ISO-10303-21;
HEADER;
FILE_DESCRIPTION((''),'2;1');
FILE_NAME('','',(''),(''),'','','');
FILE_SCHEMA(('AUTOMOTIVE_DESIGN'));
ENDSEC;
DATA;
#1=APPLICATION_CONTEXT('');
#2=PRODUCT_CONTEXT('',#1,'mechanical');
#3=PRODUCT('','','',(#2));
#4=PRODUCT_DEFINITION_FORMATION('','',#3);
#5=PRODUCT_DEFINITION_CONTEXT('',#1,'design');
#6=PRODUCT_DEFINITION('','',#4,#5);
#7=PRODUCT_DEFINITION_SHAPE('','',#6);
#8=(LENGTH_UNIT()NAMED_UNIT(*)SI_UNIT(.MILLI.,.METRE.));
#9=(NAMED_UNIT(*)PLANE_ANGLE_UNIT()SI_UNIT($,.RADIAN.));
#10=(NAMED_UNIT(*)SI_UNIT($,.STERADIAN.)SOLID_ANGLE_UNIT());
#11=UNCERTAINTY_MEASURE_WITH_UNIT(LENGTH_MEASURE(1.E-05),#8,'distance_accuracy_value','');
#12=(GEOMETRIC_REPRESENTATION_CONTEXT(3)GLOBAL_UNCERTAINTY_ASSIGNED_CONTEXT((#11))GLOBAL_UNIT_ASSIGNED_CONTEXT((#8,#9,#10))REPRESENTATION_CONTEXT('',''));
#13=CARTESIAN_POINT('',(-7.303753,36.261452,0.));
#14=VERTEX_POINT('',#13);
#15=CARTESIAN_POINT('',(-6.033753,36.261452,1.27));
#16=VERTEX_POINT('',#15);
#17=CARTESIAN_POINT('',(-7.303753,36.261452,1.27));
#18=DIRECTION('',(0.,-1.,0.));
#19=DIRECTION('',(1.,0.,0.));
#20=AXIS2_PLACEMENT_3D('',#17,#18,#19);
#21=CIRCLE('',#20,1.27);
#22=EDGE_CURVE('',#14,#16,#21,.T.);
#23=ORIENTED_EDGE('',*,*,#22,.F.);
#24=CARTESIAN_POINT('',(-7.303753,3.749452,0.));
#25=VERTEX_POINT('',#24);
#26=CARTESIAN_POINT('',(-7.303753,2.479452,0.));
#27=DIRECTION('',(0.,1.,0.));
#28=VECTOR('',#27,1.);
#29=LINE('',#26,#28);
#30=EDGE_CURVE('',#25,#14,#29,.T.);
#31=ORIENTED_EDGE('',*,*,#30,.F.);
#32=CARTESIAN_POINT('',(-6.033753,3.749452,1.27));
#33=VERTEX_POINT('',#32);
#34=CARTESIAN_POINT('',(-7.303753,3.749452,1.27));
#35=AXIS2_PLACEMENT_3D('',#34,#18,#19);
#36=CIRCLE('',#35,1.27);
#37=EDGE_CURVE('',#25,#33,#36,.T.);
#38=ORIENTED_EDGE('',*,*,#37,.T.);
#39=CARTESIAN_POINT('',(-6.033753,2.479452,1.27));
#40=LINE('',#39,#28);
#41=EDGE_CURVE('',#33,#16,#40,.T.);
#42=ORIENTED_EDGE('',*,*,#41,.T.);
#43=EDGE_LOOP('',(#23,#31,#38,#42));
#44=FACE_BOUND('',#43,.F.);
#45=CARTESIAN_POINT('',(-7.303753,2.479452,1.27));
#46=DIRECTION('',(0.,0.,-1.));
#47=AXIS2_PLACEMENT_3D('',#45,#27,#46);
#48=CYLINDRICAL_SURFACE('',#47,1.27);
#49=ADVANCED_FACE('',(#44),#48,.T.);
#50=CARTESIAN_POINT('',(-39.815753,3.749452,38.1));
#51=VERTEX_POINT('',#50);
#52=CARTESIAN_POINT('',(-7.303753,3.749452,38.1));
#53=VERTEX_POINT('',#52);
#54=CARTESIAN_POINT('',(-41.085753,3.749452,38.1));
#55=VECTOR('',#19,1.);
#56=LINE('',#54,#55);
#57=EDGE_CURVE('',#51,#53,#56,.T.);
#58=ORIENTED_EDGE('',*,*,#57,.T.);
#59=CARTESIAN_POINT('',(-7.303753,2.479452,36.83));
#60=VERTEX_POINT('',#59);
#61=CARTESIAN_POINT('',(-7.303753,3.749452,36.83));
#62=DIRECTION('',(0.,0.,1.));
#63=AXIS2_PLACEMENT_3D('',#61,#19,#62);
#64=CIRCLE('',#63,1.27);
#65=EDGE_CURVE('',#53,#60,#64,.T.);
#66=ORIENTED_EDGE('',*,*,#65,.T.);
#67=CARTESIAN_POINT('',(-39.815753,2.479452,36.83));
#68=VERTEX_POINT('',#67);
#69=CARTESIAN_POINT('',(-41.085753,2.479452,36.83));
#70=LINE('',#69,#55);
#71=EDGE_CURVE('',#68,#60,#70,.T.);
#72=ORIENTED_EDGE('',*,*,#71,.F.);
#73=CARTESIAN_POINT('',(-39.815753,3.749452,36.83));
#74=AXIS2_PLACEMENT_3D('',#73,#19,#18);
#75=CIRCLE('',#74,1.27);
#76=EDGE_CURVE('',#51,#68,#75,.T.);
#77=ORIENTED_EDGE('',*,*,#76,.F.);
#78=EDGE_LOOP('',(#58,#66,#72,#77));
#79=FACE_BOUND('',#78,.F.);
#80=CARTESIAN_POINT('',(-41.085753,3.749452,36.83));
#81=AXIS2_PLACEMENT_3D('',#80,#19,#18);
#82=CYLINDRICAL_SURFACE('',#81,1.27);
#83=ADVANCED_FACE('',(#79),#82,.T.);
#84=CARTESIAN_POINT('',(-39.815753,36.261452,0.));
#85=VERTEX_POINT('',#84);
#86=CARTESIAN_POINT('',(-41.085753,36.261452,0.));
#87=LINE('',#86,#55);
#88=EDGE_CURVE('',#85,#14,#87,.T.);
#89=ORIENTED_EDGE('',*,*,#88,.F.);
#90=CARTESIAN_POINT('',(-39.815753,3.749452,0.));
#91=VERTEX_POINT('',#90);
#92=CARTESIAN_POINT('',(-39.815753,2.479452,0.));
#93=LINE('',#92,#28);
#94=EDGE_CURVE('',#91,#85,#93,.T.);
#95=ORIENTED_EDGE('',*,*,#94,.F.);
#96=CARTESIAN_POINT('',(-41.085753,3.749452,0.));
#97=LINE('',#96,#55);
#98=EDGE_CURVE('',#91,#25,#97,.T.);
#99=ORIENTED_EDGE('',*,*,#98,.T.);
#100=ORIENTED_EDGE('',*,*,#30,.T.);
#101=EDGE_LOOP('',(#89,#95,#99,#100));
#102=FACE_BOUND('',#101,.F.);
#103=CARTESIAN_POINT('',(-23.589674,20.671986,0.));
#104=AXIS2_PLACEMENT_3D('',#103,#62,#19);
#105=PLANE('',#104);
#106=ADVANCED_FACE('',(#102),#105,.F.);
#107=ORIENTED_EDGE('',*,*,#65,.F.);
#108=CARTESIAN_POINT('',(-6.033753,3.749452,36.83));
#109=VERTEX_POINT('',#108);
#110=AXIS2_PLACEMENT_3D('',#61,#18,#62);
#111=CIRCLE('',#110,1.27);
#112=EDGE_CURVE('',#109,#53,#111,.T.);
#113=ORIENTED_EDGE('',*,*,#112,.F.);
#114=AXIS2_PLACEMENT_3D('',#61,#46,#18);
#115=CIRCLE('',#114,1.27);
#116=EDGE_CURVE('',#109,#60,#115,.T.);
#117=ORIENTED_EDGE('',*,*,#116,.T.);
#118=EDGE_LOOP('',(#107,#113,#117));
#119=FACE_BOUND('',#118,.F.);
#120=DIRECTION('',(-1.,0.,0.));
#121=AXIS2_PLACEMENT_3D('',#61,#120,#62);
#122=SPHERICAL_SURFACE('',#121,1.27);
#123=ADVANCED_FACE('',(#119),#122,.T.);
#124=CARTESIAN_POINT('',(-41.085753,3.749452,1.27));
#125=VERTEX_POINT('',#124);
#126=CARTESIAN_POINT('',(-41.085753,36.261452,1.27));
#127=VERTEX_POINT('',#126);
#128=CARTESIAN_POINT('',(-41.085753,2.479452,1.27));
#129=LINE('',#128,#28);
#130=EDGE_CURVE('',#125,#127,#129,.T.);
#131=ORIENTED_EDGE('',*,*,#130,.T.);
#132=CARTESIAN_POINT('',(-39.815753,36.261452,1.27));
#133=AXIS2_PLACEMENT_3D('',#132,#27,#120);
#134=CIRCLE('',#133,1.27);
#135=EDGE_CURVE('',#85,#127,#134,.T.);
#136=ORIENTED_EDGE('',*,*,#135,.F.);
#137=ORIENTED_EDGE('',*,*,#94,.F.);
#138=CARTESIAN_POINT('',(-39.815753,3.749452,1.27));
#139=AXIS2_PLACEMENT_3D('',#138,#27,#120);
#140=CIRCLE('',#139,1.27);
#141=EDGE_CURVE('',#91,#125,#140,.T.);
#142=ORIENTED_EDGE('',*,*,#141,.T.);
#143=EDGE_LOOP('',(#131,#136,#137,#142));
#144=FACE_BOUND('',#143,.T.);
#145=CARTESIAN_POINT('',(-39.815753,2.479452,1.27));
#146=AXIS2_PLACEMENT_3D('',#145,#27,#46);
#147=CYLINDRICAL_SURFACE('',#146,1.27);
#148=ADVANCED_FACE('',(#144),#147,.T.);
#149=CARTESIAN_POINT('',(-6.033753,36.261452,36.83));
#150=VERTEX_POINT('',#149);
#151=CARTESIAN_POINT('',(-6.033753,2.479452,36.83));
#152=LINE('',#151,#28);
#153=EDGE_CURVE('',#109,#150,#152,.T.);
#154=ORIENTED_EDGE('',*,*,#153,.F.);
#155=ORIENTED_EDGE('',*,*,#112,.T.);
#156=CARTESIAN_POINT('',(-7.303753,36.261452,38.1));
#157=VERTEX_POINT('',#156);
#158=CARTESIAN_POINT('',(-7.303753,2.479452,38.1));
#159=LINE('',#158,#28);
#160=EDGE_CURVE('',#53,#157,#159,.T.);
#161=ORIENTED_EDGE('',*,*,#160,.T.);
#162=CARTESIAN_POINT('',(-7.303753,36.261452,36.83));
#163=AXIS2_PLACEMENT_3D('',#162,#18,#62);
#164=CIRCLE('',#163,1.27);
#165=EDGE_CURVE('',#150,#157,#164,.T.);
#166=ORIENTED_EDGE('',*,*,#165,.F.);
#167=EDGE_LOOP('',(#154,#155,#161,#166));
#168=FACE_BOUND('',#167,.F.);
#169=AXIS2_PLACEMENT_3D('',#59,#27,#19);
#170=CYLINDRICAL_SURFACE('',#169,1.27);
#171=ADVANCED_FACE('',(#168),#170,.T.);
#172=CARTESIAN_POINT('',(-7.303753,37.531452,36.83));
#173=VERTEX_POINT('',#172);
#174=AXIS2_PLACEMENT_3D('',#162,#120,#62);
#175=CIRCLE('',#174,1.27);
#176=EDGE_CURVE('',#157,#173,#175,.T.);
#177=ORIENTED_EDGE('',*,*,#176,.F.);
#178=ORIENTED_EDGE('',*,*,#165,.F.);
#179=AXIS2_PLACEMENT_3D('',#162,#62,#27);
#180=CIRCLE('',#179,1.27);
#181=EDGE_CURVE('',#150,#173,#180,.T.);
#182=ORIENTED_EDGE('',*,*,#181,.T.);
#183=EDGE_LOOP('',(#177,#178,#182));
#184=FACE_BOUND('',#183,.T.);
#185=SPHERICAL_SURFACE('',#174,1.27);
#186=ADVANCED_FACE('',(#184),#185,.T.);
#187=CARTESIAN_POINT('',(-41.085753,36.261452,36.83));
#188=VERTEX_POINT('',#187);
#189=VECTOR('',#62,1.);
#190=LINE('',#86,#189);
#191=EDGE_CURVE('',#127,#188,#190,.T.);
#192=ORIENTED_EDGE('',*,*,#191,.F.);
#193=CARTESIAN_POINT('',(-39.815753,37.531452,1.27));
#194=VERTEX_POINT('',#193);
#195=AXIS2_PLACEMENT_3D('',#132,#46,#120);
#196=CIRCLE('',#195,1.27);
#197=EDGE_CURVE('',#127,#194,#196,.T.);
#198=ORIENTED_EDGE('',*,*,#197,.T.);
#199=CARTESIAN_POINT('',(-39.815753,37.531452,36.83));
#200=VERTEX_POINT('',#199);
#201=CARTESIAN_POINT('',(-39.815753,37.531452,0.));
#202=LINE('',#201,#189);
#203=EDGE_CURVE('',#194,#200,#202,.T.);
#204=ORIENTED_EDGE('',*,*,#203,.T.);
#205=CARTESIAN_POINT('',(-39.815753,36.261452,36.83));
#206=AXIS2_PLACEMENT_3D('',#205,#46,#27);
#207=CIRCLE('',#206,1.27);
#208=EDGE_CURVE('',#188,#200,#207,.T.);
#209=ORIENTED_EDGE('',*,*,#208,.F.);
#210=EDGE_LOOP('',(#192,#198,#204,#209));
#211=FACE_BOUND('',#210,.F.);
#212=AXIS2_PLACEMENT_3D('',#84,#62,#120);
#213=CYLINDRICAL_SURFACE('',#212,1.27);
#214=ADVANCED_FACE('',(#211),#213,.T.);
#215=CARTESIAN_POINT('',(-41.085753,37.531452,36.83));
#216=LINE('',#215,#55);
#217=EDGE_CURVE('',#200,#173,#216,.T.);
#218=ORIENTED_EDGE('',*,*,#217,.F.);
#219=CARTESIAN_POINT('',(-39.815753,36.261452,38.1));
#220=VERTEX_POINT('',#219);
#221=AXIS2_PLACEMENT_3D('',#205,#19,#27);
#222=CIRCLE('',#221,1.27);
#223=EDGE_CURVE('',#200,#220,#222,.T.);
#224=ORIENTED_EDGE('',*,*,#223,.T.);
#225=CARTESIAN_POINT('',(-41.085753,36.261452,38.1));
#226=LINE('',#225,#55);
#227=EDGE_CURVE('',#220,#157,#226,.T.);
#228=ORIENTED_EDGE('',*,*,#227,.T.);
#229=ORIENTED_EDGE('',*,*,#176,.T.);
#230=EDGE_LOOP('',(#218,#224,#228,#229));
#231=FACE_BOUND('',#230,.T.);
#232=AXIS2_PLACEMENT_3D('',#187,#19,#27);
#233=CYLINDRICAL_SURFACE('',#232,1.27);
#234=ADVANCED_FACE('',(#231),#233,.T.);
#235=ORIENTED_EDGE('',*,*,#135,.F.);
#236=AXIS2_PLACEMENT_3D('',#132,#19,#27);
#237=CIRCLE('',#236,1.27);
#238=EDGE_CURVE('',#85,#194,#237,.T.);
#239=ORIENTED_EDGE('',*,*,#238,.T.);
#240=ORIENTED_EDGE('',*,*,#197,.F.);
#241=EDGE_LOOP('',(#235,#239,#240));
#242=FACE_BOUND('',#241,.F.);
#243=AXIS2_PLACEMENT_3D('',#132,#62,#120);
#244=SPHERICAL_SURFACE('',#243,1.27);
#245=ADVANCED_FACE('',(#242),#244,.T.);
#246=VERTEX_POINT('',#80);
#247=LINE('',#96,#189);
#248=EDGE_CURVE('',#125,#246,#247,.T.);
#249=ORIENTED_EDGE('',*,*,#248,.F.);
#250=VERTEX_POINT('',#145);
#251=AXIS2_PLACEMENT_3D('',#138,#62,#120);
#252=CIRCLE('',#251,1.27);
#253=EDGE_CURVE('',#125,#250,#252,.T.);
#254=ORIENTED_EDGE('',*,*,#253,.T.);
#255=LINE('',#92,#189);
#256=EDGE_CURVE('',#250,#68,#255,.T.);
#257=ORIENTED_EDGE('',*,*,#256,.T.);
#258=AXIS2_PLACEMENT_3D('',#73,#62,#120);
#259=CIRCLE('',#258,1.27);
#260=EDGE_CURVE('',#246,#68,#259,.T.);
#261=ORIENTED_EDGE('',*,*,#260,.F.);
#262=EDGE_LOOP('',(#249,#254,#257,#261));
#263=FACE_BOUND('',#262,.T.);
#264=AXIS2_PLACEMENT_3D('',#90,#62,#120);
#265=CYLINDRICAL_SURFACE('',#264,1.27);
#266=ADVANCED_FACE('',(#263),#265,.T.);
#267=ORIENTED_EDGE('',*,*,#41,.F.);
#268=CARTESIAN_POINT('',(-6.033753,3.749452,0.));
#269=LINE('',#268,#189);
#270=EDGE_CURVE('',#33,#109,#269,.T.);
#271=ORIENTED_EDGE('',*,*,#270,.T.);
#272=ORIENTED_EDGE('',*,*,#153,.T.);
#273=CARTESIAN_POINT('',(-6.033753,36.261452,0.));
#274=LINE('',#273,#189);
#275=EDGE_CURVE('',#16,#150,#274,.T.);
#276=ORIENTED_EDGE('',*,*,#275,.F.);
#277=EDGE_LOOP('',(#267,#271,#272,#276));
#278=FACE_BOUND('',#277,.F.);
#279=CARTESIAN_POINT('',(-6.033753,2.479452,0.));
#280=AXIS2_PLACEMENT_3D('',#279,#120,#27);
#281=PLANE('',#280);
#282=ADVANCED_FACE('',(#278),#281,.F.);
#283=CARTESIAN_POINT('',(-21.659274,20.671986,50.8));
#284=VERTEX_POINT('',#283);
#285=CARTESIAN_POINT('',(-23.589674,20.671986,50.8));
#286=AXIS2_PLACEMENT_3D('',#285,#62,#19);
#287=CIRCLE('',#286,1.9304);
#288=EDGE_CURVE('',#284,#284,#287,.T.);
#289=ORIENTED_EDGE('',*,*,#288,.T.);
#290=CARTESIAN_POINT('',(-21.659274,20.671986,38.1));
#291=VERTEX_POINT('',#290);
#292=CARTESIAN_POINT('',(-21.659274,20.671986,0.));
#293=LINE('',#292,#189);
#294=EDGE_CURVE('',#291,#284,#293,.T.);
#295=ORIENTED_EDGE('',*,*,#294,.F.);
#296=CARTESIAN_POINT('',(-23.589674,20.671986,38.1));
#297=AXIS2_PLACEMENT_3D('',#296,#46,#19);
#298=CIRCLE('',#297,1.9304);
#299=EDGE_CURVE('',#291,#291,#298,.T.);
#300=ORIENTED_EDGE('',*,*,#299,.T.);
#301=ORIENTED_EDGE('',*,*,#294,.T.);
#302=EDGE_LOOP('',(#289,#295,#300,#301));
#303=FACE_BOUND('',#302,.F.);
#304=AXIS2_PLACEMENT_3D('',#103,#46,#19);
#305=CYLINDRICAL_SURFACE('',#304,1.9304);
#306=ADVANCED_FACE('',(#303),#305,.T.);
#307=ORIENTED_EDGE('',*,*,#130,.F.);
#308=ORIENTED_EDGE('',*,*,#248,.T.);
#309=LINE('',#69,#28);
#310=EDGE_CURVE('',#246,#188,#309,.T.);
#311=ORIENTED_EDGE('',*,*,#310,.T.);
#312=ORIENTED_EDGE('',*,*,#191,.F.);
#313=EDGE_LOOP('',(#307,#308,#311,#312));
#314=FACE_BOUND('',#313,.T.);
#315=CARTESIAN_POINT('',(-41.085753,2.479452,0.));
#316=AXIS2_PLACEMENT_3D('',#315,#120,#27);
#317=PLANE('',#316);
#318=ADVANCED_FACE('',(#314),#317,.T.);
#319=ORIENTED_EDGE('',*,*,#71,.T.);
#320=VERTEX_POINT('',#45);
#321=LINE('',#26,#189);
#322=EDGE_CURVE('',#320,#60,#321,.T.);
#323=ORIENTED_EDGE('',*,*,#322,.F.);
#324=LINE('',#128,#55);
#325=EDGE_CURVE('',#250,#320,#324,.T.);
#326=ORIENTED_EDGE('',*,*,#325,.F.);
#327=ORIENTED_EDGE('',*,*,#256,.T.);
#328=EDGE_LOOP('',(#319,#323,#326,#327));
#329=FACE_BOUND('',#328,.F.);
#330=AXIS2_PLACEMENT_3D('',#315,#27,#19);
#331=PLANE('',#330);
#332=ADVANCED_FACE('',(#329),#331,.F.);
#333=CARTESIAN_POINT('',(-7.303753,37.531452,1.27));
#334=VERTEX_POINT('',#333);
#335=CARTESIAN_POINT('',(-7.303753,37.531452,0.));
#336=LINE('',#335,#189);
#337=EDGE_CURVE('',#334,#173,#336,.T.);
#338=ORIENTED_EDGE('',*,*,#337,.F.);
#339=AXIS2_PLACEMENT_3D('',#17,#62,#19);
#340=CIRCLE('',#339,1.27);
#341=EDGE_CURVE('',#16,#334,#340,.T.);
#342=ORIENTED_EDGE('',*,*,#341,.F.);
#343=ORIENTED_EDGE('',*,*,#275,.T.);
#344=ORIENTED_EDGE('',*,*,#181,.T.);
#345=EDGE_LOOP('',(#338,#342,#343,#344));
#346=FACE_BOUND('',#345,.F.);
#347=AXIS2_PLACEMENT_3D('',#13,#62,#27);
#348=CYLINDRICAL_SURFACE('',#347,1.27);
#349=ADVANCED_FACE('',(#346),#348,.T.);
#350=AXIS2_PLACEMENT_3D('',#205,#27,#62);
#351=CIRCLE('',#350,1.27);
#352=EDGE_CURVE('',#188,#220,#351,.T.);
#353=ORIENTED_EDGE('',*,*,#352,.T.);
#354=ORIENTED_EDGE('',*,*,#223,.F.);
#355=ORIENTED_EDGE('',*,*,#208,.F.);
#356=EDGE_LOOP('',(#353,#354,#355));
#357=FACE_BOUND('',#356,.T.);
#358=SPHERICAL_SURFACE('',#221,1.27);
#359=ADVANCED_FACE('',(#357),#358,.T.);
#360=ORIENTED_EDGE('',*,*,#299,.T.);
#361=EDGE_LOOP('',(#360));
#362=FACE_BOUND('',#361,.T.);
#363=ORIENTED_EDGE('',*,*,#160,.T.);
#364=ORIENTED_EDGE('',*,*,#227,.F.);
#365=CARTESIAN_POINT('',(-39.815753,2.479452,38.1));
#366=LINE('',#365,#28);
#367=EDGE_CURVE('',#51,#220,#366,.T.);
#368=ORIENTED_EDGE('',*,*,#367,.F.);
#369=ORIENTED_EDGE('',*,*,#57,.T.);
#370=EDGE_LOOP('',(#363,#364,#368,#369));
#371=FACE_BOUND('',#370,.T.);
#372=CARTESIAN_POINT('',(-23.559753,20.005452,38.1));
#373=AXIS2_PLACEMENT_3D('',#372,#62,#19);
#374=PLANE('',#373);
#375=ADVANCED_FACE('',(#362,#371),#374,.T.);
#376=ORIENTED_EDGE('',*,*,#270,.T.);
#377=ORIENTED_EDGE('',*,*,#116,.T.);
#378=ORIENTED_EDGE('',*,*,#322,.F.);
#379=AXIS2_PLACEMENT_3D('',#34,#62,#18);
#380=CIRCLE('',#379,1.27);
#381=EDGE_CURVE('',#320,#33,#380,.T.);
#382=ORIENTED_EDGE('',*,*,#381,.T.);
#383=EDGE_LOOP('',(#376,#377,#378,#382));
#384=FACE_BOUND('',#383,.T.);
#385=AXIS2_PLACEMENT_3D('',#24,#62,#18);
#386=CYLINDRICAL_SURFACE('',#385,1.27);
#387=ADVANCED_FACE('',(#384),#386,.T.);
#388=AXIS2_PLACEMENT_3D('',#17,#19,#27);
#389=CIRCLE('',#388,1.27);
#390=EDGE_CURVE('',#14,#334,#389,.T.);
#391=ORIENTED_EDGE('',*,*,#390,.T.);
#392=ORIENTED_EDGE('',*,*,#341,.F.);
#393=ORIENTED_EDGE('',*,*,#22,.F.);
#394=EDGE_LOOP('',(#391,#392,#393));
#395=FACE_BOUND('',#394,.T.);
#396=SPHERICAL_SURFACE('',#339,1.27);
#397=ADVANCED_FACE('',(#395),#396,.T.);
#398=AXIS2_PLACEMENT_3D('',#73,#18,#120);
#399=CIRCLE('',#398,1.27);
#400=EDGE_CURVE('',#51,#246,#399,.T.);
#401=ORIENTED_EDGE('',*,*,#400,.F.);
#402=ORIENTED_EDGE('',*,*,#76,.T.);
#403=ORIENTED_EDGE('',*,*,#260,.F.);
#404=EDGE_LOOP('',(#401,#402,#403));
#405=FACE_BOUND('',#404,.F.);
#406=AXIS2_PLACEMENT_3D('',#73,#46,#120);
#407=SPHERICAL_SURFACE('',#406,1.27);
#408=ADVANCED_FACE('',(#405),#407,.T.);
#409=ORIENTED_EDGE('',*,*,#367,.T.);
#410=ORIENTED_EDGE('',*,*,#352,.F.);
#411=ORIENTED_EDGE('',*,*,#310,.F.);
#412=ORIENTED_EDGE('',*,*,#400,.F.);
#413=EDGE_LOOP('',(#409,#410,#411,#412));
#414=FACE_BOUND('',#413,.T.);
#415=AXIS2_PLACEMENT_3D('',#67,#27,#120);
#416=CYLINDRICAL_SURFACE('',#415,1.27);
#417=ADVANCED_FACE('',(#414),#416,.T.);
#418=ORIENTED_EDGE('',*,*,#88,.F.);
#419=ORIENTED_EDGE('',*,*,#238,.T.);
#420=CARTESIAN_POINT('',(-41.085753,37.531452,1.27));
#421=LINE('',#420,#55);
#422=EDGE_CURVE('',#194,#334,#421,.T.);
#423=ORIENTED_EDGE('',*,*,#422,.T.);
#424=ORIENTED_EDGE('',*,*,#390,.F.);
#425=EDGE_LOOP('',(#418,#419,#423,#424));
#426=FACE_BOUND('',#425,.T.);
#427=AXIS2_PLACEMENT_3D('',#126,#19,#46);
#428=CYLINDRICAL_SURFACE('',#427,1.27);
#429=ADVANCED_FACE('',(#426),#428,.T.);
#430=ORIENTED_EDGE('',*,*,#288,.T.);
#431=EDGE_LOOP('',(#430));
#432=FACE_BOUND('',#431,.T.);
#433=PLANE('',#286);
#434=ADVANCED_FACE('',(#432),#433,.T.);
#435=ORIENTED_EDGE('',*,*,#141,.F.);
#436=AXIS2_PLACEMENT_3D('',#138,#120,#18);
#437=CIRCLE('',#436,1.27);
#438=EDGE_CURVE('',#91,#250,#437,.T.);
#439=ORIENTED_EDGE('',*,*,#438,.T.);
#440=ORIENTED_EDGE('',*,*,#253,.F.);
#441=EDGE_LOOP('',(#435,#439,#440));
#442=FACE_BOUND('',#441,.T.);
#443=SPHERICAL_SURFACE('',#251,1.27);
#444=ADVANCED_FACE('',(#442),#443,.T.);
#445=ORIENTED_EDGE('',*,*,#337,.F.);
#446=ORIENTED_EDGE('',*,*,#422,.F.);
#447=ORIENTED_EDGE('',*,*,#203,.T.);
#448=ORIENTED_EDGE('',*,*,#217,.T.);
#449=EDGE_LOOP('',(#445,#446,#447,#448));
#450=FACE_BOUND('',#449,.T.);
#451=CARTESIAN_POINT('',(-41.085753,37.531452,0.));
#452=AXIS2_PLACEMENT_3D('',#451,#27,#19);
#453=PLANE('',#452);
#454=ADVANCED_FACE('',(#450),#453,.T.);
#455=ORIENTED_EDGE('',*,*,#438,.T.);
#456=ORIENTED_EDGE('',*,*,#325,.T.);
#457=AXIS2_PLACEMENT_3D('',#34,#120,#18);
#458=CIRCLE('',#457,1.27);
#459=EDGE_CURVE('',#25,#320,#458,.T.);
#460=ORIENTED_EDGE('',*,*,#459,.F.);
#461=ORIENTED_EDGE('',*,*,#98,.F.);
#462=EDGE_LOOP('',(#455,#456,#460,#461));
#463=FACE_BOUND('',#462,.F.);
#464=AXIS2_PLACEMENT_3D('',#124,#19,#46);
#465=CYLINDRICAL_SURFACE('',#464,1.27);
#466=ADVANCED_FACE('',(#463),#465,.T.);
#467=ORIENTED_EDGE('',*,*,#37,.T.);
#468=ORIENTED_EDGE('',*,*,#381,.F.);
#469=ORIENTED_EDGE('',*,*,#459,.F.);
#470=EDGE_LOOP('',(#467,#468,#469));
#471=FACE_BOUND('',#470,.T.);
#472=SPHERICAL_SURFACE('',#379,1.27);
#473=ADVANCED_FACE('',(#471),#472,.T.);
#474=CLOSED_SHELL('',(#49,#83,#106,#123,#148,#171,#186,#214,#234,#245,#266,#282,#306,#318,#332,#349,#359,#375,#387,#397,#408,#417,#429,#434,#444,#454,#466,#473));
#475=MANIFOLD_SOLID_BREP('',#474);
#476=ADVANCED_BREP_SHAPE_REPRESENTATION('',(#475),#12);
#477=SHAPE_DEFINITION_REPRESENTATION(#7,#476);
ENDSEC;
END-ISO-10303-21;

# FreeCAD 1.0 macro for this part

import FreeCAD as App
import Part
import Sketcher
Q = App.Units.Quantity


def edges_at(feature, points):
    """Names of the edges that pass closest to the given points."""
    edges = feature.Shape.Edges
    near = lambda p: min(range(len(edges)), key=lambda i: edges[i].distToShape(Part.Vertex(*p))[0])
    return sorted({f"Edge{near(p) + 1}" for p in points})

doc = App.newDocument("Part")
body = doc.addObject("PartDesign::Body", "Body")

# Sketch on XY plane
sketch1 = body.newObject("Sketcher::SketchObject", "Sketch")
sketch1.AttachmentSupport = (doc.getObject("XY_Plane"), [""])
sketch1.MapMode = "FlatFace"
sketch1.addGeometry(Part.LineSegment(App.Vector(-41, 38, 0), App.Vector(-41, 2, 0)), False)
sketch1.addGeometry(Part.LineSegment(App.Vector(-41, 2, 0), App.Vector(-6, 2, 0)), False)
sketch1.addGeometry(Part.LineSegment(App.Vector(-6, 2, 0), App.Vector(-6, 38, 0)), False)
sketch1.addGeometry(Part.LineSegment(App.Vector(-6, 38, 0), App.Vector(-41, 38, 0)), False)
sketch1.addConstraint(Sketcher.Constraint("Coincident", 0, 2, 1, 1))
sketch1.addConstraint(Sketcher.Constraint("Coincident", 1, 2, 2, 1))
sketch1.addConstraint(Sketcher.Constraint("Coincident", 2, 2, 3, 1))
sketch1.addConstraint(Sketcher.Constraint("Coincident", 3, 2, 0, 1))
sketch1.addConstraint(Sketcher.Constraint("Vertical", 0))
sketch1.addConstraint(Sketcher.Constraint("Horizontal", 1))
sketch1.addConstraint(Sketcher.Constraint("Vertical", 2))
sketch1.addConstraint(Sketcher.Constraint("Horizontal", 3))
sketch1.addConstraint(Sketcher.Constraint("Equal", 3, 0))
sketch1.addConstraint(Sketcher.Constraint("DistanceX", 1, 1, 1, 2, Q("1.38 in")))
sketch1.addConstraint(Sketcher.Constraint("DistanceX", 0, 2, -1, 1, Q("41.085753 mm")))
sketch1.addConstraint(Sketcher.Constraint("DistanceY", -1, 1, 0, 2, Q("2.479452 mm")))
pad1 = body.newObject("PartDesign::Pad", "Pad")
pad1.Profile = sketch1
pad1.Length = Q("1.5 in")

# Sketch on XY plane
sketch2 = body.newObject("Sketcher::SketchObject", "Sketch001")
sketch2.AttachmentSupport = (doc.getObject("XY_Plane"), [""])
sketch2.MapMode = "FlatFace"
sketch2.addGeometry(Part.Circle(App.Vector(-23.6, 20.7, 0), App.Vector(0, 0, 1), 1.9), False)
sketch2.addConstraint(Sketcher.Constraint("Diameter", 0, Q("0.152 in")))
sketch2.addConstraint(Sketcher.Constraint("DistanceX", 0, 3, -1, 1, Q("23.589674 mm")))
sketch2.addConstraint(Sketcher.Constraint("DistanceY", -1, 1, 0, 3, Q("20.671986 mm")))
pad2 = body.newObject("PartDesign::Pad", "Pad001")
pad2.Profile = sketch2
pad2.Length = Q("2 in")
doc.recompute()

fillet = body.newObject("PartDesign::Fillet", "Fillet")
fillet.Base = (pad2, edges_at(pad2, [
    (-23.56, 37.531, 38.1),
    (-41.086, 37.531, 19.05),
    (-41.086, 2.479, 19.05),
    (-41.086, 20.005, 0),
    (-41.086, 20.005, 38.1),
    (-23.56, 2.479, 38.1),
    (-6.034, 20.005, 38.1),
    (-6.034, 2.479, 19.05),
    (-23.56, 2.479, 0),
    (-6.034, 37.531, 19.05),
    (-6.034, 20.005, 0),
    (-23.56, 37.531, 0),
]))
fillet.Radius = Q("0.05 in")

doc.recompute()
